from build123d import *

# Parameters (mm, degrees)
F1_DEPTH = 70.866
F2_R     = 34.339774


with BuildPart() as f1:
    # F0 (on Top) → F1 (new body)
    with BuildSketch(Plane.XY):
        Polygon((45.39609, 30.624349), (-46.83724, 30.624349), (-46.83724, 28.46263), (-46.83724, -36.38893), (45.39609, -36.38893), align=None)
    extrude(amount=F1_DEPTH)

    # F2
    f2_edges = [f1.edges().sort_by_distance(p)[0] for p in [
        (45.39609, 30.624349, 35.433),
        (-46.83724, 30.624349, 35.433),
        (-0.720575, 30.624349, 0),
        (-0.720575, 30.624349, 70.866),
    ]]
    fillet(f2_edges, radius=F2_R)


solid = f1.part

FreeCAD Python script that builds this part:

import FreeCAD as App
import Part
import Sketcher


def edges_at(feature, points):
    """Names of the edges that pass closest to the given points."""
    edges = feature.Shape.Edges
    near = lambda p: min(range(len(edges)), key=lambda i: edges[i].distToShape(Part.Vertex(*p))[0])
    return sorted({f"Edge{near(p) + 1}" for p in points})

doc = App.newDocument("Part")
params = doc.addObject("Spreadsheet::Sheet", "Params")
for row, (alias, value) in enumerate([
    ("pad1_length", "2.79 in"),
    ("fillet_radius", "34.339774 mm"),
], start=1):
    params.set(f"A{row}", alias)
    params.set(f"B{row}", "=" + value)
    params.setAlias(f"B{row}", alias)

body = doc.addObject("PartDesign::Body", "Body")

# Sketch on XY plane
sketch1 = body.newObject("Sketcher::SketchObject", "Sketch")
sketch1.AttachmentSupport = (doc.getObject("XY_Plane"), [""])
sketch1.MapMode = "FlatFace"
sketch1.addGeometry(Part.LineSegment(App.Vector(45, 31, 0), App.Vector(-47, 31, 0)), False)
sketch1.addGeometry(Part.LineSegment(App.Vector(-47, 31, 0), App.Vector(-47, -36, 0)), False)
sketch1.addGeometry(Part.LineSegment(App.Vector(-47, -36, 0), App.Vector(45, -36, 0)), False)
sketch1.addGeometry(Part.LineSegment(App.Vector(45, -36, 0), App.Vector(45, 31, 0)), False)
sketch1.addConstraint(Sketcher.Constraint("Coincident", 0, 2, 1, 1))
sketch1.addConstraint(Sketcher.Constraint("Coincident", 1, 2, 2, 1))
sketch1.addConstraint(Sketcher.Constraint("Coincident", 2, 2, 3, 1))
sketch1.addConstraint(Sketcher.Constraint("Coincident", 3, 2, 0, 1))
sketch1.addConstraint(Sketcher.Constraint("Horizontal", 0))
sketch1.addConstraint(Sketcher.Constraint("Vertical", 1))
sketch1.addConstraint(Sketcher.Constraint("Horizontal", 2))
sketch1.addConstraint(Sketcher.Constraint("Vertical", 3))
sketch1.addConstraint(Sketcher.Constraint("DistanceX", 0, 2, 0, 1, 92.23333))
sketch1.addConstraint(Sketcher.Constraint("DistanceY", 1, 2, 1, 1, 67.013279))
sketch1.addConstraint(Sketcher.Constraint("DistanceX", 0, 2, -1, 1, 46.83724))
sketch1.addConstraint(Sketcher.Constraint("DistanceY", -1, 1, 0, 2, 30.624349))
pad1 = body.newObject("PartDesign::Pad", "Pad")
pad1.Profile = sketch1
pad1.setExpression("Length", "Params.pad1_length")
doc.recompute()

fillet = body.newObject("PartDesign::Fillet", "Fillet")
fillet.Base = (pad1, edges_at(pad1, [
    (45.396, 30.624, 35.433),
    (-46.837, 30.624, 35.433),
    (-0.721, 30.624, 0),
    (-0.721, 30.624, 70.866),
]))
fillet.setExpression("Radius", "Params.fillet_radius")

doc.recompute()
